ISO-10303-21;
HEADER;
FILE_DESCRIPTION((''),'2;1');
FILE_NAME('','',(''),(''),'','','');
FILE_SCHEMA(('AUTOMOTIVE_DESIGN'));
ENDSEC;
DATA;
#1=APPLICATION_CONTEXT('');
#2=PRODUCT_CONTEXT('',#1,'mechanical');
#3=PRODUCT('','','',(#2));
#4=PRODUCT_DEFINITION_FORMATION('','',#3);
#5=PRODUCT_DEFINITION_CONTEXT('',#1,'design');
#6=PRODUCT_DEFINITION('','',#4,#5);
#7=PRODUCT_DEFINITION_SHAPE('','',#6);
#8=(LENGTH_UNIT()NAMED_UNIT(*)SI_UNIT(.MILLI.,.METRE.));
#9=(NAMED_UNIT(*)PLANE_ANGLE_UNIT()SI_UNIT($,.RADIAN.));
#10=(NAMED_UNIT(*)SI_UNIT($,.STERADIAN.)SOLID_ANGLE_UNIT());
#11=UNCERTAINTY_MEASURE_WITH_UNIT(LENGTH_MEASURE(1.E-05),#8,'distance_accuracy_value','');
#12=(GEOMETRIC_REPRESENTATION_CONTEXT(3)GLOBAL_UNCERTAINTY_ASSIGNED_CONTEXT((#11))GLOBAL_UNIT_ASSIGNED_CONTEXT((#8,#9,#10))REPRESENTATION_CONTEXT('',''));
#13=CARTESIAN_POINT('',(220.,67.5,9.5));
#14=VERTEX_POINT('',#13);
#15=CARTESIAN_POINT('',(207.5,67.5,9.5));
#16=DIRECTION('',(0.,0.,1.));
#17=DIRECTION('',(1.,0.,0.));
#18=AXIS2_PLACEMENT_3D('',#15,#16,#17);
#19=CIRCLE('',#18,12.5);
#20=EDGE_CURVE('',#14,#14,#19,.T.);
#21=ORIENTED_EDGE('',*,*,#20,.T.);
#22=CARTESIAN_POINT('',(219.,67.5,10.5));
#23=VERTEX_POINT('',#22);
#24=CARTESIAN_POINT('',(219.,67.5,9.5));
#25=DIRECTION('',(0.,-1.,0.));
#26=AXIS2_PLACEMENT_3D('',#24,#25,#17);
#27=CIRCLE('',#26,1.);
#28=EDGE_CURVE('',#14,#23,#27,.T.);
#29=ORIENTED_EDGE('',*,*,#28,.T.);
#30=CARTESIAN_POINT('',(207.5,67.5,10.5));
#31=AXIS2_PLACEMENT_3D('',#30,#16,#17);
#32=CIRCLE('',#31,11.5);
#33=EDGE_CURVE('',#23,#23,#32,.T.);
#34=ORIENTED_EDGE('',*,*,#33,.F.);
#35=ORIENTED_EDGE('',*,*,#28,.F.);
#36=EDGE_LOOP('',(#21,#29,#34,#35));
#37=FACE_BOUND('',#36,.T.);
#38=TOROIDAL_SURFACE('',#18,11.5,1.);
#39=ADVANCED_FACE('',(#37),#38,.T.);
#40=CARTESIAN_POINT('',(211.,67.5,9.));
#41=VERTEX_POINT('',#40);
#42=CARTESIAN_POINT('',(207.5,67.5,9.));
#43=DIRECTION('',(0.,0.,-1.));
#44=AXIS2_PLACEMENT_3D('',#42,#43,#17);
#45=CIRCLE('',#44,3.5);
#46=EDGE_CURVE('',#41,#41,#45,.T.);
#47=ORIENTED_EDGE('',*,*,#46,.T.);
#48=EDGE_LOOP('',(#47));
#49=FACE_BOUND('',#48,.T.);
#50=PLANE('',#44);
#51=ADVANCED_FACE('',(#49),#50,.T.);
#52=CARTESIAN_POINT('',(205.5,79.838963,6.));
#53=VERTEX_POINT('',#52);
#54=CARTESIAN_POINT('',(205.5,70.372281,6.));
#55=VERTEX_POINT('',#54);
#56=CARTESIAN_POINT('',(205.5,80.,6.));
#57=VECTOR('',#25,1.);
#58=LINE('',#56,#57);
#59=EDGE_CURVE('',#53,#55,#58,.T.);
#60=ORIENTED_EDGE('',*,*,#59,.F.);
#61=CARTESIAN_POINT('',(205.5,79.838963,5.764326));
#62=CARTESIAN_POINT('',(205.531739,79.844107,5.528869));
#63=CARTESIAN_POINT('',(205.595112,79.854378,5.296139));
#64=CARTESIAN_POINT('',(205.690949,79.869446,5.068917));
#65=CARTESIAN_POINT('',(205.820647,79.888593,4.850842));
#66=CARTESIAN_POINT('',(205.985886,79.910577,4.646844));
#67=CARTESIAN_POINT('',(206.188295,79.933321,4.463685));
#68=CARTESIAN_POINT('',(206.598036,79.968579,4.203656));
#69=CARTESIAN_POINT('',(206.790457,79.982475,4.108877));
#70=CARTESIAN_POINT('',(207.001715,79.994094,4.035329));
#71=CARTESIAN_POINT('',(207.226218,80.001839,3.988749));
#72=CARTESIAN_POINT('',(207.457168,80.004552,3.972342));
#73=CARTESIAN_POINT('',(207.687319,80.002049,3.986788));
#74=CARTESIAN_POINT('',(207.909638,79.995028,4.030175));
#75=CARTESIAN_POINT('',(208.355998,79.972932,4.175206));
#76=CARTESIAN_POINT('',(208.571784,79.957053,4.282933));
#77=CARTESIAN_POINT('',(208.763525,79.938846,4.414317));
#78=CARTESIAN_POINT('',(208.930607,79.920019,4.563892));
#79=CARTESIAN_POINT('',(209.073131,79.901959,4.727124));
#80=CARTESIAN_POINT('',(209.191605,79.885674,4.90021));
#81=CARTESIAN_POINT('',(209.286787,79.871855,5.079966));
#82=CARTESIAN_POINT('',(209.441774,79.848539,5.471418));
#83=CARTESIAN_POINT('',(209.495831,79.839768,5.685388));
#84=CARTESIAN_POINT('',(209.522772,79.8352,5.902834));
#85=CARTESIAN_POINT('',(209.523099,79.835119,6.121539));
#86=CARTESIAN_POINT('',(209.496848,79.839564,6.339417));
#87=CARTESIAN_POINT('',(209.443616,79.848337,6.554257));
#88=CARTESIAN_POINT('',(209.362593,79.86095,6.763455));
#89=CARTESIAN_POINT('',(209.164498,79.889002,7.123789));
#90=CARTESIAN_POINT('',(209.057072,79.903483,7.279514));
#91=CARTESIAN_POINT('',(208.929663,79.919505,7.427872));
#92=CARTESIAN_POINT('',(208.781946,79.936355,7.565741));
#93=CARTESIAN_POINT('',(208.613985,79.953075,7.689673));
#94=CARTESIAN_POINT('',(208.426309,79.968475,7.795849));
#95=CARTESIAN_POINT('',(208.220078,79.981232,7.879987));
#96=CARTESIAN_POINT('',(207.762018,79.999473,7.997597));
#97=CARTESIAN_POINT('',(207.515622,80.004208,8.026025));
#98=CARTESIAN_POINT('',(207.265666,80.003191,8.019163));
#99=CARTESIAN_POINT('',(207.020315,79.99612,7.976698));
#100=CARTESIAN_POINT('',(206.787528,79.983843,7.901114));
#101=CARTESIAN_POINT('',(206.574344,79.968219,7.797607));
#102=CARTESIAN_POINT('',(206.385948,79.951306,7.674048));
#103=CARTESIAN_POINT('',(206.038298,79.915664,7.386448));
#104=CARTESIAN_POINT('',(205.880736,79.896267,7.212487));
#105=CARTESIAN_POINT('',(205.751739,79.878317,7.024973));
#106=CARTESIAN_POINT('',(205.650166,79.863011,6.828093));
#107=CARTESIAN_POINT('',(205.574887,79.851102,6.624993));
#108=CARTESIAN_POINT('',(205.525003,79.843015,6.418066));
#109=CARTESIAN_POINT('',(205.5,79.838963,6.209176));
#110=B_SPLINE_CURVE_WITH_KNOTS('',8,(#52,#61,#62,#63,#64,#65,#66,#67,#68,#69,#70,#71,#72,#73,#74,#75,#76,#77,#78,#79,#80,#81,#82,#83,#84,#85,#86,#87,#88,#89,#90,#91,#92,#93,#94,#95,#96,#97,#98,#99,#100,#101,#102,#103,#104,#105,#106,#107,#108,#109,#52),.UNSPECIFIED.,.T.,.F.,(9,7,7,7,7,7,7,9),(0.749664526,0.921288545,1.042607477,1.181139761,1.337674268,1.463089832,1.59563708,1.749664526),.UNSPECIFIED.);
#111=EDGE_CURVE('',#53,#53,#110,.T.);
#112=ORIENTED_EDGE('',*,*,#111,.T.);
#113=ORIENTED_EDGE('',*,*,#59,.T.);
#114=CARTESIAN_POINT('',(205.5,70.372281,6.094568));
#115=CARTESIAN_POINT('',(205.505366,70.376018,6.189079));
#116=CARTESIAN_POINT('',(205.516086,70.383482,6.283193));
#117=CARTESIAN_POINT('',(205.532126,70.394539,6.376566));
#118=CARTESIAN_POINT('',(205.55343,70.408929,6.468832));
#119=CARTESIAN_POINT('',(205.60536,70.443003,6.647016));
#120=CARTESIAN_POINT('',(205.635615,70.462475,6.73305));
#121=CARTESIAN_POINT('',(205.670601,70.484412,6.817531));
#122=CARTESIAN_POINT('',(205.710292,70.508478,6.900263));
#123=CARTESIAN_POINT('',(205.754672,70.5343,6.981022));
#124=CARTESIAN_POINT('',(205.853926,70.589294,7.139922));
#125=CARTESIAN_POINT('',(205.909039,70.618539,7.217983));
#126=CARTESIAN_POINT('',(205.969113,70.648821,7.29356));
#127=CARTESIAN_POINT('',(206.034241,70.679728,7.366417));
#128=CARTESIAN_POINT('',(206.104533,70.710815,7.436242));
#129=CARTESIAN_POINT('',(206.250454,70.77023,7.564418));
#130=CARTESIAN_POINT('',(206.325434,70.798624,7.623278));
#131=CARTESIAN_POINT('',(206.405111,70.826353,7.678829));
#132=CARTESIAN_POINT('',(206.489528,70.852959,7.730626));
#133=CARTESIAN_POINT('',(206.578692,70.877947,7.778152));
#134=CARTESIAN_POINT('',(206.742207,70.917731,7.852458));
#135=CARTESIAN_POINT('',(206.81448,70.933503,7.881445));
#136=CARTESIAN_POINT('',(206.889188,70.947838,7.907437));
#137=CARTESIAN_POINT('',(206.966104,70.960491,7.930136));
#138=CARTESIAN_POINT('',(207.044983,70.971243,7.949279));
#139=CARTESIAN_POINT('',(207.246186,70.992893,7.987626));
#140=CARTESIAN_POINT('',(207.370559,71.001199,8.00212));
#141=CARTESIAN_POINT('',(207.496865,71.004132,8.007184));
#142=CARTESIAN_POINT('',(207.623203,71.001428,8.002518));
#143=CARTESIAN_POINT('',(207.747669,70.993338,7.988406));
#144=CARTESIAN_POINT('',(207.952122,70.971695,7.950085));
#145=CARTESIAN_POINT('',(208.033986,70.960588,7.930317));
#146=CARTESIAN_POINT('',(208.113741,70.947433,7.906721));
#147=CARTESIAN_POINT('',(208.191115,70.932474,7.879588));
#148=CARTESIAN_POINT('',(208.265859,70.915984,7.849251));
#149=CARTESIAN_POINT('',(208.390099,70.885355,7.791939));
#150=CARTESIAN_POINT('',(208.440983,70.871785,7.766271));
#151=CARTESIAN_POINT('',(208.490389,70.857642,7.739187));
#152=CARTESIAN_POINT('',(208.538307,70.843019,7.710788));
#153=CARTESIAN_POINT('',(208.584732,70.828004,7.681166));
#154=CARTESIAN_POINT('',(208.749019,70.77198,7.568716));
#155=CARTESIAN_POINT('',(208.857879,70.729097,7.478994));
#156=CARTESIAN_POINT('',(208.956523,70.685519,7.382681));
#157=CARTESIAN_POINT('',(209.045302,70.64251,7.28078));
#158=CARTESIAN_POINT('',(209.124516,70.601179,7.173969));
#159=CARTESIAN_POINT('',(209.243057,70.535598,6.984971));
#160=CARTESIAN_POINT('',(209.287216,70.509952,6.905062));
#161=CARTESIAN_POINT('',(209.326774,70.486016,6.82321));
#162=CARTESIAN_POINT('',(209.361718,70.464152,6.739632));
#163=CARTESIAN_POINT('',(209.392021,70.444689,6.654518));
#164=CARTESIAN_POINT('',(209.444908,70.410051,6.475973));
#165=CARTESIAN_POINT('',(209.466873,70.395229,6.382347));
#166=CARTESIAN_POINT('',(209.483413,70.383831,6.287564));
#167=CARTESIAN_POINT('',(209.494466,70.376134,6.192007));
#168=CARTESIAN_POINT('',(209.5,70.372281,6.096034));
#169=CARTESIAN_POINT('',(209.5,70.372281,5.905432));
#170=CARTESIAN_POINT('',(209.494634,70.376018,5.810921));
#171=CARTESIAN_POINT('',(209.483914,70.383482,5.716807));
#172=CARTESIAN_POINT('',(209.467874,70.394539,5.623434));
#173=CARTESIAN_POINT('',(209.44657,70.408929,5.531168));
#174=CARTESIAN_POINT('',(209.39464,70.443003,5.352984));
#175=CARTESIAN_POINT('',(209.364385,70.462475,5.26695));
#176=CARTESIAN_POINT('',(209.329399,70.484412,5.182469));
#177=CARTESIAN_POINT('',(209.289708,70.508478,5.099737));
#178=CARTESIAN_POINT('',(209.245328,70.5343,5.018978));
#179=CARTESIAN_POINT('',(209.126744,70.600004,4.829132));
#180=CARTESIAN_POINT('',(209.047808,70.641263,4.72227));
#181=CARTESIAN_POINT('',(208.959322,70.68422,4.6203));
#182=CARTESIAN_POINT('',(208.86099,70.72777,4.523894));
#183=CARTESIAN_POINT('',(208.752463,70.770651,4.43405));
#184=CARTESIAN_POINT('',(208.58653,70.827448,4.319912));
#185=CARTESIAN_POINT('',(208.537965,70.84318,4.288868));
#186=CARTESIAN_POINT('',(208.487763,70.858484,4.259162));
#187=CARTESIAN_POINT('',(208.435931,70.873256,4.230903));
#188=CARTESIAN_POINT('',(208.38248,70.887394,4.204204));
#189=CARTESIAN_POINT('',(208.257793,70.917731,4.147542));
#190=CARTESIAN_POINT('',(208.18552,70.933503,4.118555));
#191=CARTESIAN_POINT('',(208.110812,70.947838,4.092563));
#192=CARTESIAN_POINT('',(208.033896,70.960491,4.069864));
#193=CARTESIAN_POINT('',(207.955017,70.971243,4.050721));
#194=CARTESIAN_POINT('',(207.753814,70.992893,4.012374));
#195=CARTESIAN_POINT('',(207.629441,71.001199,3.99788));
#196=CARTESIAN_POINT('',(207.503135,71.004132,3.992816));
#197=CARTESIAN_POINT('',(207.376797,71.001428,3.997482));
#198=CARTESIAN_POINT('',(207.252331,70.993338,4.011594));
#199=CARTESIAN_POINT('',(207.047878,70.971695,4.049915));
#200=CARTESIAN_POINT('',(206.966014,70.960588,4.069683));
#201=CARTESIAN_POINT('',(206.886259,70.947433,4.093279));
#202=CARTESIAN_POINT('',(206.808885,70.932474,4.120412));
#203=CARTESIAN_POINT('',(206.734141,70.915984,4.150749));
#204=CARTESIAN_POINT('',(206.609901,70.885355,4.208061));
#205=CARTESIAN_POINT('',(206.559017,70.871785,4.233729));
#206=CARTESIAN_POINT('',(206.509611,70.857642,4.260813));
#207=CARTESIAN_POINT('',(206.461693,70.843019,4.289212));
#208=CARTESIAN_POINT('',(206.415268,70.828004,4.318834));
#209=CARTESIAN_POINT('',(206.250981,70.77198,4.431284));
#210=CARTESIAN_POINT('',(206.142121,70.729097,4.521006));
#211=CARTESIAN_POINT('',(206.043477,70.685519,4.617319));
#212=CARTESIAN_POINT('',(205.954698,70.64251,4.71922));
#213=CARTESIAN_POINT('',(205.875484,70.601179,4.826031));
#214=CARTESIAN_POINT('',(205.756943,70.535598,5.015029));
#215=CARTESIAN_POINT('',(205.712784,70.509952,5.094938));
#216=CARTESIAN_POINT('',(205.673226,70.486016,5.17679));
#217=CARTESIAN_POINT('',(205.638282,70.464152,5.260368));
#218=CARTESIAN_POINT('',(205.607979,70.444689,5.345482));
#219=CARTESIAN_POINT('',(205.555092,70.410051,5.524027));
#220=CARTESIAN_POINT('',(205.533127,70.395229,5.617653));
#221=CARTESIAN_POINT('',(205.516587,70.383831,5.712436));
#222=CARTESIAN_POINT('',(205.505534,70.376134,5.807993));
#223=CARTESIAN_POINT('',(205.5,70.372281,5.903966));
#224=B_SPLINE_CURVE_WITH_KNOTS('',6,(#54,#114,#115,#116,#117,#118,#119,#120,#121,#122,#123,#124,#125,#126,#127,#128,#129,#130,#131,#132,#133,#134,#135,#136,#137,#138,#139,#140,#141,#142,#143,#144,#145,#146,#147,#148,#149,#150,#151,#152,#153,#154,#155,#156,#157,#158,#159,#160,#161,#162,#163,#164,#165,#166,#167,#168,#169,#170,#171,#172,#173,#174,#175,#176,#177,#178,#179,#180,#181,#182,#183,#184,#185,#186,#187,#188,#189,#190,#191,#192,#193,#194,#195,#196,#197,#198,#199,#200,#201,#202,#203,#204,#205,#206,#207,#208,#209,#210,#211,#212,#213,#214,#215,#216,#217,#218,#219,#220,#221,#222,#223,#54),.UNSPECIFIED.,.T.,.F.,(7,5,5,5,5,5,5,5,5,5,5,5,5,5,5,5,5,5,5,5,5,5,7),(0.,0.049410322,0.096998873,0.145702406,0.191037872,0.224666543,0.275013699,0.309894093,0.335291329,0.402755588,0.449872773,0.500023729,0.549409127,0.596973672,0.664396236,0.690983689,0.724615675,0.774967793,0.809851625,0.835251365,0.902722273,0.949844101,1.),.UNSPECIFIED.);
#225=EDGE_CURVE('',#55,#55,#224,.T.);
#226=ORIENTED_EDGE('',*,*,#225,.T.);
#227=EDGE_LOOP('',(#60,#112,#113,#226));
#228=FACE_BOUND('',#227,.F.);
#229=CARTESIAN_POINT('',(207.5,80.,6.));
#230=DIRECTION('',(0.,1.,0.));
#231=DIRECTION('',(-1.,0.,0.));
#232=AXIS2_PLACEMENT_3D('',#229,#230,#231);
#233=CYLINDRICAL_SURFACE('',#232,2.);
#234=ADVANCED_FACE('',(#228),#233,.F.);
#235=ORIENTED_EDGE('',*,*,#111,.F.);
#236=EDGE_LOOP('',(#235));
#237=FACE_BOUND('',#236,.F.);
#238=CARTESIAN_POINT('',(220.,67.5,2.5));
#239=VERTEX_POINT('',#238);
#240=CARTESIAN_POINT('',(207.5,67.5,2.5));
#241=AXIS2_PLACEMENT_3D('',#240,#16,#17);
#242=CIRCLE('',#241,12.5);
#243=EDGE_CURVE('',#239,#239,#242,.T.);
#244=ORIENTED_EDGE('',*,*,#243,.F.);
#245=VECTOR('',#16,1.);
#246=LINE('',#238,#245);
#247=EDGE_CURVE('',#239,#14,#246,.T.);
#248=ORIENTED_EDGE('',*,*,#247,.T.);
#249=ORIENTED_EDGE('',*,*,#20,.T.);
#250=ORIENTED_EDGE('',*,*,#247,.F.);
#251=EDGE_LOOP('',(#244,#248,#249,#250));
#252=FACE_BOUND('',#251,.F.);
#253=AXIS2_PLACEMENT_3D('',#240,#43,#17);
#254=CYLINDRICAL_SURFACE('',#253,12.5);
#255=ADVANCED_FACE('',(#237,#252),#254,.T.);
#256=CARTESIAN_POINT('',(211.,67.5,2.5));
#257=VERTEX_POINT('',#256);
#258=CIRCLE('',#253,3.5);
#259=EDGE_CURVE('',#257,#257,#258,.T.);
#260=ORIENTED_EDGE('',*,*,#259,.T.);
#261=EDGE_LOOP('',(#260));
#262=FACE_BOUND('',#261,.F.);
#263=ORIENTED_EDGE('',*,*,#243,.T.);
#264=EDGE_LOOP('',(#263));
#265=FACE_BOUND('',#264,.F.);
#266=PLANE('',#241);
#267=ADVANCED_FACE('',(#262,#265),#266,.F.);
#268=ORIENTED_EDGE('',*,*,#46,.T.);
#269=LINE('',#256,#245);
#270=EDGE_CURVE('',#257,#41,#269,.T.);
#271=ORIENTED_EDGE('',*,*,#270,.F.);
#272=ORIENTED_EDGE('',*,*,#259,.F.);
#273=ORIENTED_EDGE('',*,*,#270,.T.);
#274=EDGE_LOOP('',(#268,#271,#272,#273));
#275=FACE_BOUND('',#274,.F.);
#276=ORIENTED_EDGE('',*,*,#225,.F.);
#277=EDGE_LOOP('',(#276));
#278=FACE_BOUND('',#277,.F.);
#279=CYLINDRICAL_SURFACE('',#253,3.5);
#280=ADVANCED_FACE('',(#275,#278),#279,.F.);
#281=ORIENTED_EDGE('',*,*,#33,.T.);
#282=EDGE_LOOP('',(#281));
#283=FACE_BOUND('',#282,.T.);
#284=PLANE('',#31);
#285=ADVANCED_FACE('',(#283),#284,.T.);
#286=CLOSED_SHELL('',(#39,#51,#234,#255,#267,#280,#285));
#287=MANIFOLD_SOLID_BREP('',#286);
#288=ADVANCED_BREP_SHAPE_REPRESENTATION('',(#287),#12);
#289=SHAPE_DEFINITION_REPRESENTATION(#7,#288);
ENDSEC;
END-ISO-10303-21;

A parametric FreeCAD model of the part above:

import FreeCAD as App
import Part
import Sketcher
from FreeCAD import Vector


def edges_at(feature, points):
    """Names of the edges that pass closest to the given points."""
    edges = feature.Shape.Edges
    near = lambda p: min(range(len(edges)), key=lambda i: edges[i].distToShape(Part.Vertex(*p))[0])
    return sorted({f"Edge{near(p) + 1}" for p in points})

doc = App.newDocument("Part")
body = doc.addObject("PartDesign::Body", "Body")

# Sketch on XY plane
sketch1 = body.newObject("Sketcher::SketchObject", "Sketch")
sketch1.AttachmentSupport = (doc.getObject("XY_Plane"), [""])
sketch1.MapMode = "FlatFace"
sketch1.addGeometry(Part.Circle(Vector(0, 0, 0), Vector(0, 0, 1), 12), False)
sketch1.addConstraint([
    Sketcher.Constraint("Coincident", 0, 3, -1, 1),
    Sketcher.Constraint("Diameter", 0, 25.0),
])
pad1 = body.newObject("PartDesign::Pad", "Pad")
pad1.Profile = sketch1
pad1.Length = 8

# Sketch on XY plane
sketch2 = body.newObject("Sketcher::SketchObject", "Sketch001")
sketch2.AttachmentSupport = (doc.getObject("XY_Plane"), [""])
sketch2.MapMode = "FlatFace"
sketch2.addGeometry(Part.Circle(Vector(0, 0, 0), Vector(0, 0, 1), 3.5), False)
sketch2.addConstraint([
    Sketcher.Constraint("Coincident", 0, 3, -1, 1),
    Sketcher.Constraint("Diameter", 0, 7.0),
])
pocket1 = body.newObject("PartDesign::Pocket", "Pocket")
pocket1.Profile = sketch2
pocket1.Length = 6.5
pocket1.Reversed = True
doc.recompute()

fillet = body.newObject("PartDesign::Fillet", "Fillet")
fillet.Base = (pocket1, edges_at(pocket1, [(-12.5, 0, 8)]))
fillet.Radius = 1

# Sketch on XZ plane
sketch3 = body.newObject("Sketcher::SketchObject", "Sketch002")
sketch3.AttachmentSupport = (doc.getObject("XZ_Plane"), [""])
sketch3.MapMode = "FlatFace"
sketch3.AttachmentOffset = App.Placement(Vector(0, 0, -12.5), App.Rotation())
sketch3.addGeometry(Part.Circle(Vector(0, 3.5, 0), Vector(0, 0, 1), 2), False)
sketch3.addConstraint([
    Sketcher.Constraint("PointOnObject", 0, 3, -2),
    Sketcher.Constraint("Diameter", 0, 4.0),
    Sketcher.Constraint("DistanceY", -1, 1, 0, 3, 3.5),
])
pocket2 = body.newObject("PartDesign::Pocket", "Pocket001")
pocket2.Profile = sketch3
pocket2.Length = 10
pocket2.Reversed = True
body2 = doc.addObject("PartDesign::Body", "Body001")
doc.recompute()

body.Placement = App.Placement(Vector(207.5, 67.5, 2.5), App.Rotation(Vector(0, 0, 1), 0))
boolean = body2.newObject("PartDesign::Boolean", "Boolean")
boolean.Type = "Fuse"
boolean.addObjects([body])

doc.recompute()
